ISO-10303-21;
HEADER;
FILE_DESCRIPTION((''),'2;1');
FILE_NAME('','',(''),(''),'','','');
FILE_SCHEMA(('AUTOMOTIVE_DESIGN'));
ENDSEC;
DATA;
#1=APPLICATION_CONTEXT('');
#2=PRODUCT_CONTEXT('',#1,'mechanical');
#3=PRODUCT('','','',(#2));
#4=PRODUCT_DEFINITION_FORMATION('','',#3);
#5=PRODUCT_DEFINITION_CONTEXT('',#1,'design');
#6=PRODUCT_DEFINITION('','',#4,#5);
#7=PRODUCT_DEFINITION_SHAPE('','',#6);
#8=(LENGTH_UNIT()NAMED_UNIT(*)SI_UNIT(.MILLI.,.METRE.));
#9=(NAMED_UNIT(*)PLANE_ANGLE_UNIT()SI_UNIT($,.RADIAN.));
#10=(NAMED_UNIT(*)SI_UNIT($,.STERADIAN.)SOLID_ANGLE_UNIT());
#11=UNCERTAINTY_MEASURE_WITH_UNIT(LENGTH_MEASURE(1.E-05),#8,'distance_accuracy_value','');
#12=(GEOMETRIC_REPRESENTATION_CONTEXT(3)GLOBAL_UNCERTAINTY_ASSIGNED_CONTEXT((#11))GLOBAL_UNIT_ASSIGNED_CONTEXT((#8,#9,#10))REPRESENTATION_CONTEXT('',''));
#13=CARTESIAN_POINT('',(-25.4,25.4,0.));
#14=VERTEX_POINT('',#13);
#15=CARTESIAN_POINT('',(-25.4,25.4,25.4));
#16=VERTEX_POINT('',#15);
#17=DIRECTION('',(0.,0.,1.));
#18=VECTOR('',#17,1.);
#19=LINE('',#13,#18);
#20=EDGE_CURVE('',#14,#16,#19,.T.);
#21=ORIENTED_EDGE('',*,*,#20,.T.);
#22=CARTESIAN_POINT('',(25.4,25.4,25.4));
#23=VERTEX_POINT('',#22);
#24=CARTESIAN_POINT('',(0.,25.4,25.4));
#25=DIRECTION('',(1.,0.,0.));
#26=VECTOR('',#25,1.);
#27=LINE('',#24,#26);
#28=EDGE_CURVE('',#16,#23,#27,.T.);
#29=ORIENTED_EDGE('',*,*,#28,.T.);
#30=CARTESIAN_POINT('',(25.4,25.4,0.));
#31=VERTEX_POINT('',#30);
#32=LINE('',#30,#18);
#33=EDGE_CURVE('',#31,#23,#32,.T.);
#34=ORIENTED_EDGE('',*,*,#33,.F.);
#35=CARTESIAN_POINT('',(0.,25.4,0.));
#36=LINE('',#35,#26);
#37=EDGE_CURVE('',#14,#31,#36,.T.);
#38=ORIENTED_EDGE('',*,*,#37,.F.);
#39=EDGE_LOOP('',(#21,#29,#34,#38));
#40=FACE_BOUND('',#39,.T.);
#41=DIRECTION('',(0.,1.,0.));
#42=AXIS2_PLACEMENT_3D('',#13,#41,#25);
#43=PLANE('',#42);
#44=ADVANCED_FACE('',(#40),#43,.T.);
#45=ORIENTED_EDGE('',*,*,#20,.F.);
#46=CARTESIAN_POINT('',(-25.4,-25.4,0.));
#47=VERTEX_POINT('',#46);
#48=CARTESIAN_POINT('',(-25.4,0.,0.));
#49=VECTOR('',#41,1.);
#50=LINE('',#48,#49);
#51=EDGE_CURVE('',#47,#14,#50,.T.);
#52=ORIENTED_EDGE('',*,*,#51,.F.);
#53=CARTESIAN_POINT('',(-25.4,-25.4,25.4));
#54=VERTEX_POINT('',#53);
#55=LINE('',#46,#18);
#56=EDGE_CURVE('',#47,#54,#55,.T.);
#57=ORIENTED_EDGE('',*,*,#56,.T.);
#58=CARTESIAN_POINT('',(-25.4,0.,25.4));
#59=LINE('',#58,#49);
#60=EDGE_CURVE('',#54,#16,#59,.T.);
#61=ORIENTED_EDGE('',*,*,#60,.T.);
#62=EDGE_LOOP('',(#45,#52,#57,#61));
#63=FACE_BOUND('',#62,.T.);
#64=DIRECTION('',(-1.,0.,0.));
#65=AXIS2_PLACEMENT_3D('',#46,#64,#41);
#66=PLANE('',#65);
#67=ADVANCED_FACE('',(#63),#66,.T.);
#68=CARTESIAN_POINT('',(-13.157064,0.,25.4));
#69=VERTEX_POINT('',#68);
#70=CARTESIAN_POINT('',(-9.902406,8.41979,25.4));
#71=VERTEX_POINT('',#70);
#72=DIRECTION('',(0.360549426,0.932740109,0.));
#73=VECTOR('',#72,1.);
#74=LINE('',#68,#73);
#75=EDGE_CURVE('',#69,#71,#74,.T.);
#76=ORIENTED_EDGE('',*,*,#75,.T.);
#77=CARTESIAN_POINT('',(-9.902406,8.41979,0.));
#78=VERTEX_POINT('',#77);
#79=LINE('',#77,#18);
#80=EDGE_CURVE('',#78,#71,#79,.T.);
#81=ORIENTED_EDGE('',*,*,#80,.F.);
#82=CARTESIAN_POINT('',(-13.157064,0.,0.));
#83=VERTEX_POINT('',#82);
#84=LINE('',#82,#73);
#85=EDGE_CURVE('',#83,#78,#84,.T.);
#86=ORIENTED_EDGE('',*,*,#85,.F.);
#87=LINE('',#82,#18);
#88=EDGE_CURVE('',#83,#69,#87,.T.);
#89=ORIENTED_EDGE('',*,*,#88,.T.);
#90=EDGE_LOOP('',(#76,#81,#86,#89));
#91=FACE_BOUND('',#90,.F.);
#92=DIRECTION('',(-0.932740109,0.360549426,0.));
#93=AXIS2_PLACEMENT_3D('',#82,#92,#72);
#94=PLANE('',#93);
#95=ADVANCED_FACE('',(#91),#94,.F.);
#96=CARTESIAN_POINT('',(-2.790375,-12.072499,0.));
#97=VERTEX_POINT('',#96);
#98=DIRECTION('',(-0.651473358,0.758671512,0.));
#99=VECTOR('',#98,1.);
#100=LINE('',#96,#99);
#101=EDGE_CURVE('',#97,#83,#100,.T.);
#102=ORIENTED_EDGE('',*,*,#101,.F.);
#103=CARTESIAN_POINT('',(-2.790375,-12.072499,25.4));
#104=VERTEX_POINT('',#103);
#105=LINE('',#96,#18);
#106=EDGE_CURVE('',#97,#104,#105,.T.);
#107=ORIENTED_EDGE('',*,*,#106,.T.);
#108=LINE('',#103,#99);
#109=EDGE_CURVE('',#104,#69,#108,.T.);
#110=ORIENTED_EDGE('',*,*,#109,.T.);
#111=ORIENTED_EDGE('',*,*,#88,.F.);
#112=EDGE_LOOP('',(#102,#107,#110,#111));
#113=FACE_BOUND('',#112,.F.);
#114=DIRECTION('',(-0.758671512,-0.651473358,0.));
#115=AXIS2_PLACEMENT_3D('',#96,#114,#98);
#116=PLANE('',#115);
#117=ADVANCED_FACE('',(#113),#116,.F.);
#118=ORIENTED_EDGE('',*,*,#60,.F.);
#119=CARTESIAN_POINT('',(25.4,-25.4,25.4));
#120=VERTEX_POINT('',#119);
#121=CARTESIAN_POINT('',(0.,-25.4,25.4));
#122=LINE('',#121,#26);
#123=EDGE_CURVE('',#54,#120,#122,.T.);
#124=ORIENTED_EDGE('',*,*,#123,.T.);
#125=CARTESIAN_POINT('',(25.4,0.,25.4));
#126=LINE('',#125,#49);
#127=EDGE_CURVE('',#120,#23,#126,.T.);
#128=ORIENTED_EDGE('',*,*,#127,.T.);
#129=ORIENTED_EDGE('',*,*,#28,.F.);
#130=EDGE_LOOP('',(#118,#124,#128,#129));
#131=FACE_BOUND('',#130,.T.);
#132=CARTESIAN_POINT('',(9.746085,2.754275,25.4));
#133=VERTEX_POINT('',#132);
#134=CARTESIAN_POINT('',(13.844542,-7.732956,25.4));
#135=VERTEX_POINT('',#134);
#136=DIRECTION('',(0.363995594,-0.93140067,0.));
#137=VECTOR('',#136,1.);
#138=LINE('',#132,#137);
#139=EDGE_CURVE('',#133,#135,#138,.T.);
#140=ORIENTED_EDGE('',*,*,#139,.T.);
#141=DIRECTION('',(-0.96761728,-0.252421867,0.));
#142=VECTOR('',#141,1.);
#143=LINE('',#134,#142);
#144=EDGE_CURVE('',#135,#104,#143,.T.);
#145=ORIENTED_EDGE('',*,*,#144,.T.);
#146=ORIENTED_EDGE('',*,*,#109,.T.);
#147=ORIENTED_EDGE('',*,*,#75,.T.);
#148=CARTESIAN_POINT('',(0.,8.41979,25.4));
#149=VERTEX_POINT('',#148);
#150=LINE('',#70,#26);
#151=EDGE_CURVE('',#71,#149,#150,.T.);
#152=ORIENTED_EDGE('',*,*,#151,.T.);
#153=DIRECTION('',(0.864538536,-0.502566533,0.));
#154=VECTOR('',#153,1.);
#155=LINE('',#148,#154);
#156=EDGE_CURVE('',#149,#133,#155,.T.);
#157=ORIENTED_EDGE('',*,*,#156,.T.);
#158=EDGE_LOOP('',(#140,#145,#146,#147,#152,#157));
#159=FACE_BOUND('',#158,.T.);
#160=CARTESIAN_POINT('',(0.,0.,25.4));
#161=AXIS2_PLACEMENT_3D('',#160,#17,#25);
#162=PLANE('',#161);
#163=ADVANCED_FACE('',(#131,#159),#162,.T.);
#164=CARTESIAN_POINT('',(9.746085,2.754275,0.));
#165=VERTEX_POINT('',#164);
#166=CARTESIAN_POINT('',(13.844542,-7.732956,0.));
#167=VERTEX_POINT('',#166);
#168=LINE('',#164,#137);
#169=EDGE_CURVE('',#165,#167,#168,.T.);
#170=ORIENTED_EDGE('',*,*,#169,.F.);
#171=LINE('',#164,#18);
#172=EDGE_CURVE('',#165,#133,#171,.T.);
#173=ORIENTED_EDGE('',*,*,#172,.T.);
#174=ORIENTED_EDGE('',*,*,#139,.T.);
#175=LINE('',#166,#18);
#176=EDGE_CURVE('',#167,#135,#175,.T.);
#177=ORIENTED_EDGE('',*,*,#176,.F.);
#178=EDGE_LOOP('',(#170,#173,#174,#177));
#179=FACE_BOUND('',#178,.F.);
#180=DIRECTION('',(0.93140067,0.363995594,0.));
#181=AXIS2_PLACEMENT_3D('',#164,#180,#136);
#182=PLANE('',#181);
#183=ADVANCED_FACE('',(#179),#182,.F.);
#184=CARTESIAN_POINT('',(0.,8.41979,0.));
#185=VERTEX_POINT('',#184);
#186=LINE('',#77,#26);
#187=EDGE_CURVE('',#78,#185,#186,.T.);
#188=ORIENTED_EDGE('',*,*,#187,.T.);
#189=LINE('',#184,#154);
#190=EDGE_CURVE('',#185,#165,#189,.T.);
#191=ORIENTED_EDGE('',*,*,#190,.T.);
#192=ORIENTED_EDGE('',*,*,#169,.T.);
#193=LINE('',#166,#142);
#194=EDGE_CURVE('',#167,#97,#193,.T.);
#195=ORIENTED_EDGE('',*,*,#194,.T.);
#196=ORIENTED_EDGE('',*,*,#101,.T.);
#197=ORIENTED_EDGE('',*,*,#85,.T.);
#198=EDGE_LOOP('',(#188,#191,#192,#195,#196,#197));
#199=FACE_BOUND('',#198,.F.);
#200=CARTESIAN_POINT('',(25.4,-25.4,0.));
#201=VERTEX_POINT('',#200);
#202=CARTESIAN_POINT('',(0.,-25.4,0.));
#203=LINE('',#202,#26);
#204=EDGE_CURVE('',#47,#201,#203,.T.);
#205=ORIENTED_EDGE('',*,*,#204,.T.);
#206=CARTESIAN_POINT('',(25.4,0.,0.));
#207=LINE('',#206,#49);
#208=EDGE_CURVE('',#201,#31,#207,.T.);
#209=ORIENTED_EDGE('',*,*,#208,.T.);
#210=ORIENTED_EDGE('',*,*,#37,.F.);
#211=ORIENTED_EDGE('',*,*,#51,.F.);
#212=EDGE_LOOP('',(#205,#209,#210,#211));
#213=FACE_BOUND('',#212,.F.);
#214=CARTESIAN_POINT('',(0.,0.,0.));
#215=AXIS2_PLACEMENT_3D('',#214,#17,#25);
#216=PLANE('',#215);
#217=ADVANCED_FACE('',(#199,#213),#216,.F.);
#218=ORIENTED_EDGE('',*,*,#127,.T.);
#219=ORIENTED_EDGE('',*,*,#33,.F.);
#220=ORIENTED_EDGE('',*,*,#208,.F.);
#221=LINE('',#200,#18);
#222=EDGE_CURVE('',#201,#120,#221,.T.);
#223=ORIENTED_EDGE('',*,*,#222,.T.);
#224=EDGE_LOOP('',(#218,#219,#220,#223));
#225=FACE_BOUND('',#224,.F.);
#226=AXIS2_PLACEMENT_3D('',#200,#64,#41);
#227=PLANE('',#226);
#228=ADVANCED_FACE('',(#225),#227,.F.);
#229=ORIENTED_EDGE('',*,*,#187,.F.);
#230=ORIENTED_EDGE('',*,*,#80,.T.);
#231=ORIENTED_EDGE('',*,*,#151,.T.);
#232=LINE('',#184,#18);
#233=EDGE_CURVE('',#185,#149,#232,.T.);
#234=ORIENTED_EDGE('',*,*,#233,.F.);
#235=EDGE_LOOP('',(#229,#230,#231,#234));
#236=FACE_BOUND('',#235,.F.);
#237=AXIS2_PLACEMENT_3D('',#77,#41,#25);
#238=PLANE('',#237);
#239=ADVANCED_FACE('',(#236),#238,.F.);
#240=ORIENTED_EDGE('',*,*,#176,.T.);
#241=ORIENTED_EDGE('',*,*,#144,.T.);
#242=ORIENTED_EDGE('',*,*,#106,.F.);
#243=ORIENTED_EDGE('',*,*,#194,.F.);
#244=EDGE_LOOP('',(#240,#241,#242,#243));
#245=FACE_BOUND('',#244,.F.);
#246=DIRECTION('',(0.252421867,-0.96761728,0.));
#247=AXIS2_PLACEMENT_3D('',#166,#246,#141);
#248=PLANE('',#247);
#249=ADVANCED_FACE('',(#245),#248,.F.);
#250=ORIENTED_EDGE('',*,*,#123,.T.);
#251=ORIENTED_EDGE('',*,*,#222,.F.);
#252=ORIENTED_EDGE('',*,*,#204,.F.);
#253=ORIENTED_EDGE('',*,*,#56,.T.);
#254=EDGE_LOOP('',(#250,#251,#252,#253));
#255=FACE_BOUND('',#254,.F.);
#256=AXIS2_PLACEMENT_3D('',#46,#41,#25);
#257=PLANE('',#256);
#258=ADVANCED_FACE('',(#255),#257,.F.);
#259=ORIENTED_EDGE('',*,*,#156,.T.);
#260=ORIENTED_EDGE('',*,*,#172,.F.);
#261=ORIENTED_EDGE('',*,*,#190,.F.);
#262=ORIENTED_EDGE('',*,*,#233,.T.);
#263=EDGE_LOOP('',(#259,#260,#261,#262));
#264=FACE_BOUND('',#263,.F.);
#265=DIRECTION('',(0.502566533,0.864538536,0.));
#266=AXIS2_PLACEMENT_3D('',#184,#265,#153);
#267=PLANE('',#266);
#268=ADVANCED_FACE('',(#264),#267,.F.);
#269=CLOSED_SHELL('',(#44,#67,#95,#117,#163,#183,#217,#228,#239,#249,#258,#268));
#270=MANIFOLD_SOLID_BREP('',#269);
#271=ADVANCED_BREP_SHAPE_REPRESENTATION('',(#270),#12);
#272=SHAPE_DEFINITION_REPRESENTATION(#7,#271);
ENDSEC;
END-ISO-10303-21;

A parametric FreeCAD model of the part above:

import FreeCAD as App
import Part
import Sketcher
from FreeCAD import Vector
Q = App.Units.Quantity


def add_polygon(sketch, points):
    """Adds a closed chain of lines whose ends are joined by coincident constraints."""
    first, n = sketch.GeometryCount, len(points)
    for a, b in zip(points, points[1:] + points[:1]):
        sketch.addGeometry(Part.LineSegment(App.Vector(*a, 0), App.Vector(*b, 0)), False)
    for i in range(n):
        sketch.addConstraint(Sketcher.Constraint("Coincident", first + i, 2, first + (i + 1) % n, 1))

doc = App.newDocument("Part")
body = doc.addObject("PartDesign::Body", "Body")

# Sketch on XY plane
sketch1 = body.newObject("Sketcher::SketchObject", "Sketch")
sketch1.AttachmentSupport = (doc.getObject("XY_Plane"), [""])
sketch1.MapMode = "FlatFace"
add_polygon(sketch1, [(-25, 25), (-25, -25), (25, -25), (25, 25)])  # lines 0-3
add_polygon(sketch1, [(14, -8), (-3, -12), (-13, 0), (-10, 8), (0, 8), (10, 3)])  # lines 4-9
sketch1.addConstraint([
    Sketcher.Constraint("Vertical", 0),
    Sketcher.Constraint("Horizontal", 1),
    Sketcher.Constraint("Vertical", 2),
    Sketcher.Constraint("Horizontal", 3),
    Sketcher.Constraint("Horizontal", 7),
    Sketcher.Constraint("Symmetric", 0, 2, 2, 2, -1, 1),
    Sketcher.Constraint("PointOnObject", 5, 2, -1),
    Sketcher.Constraint("PointOnObject", 7, 2, -2),
    Sketcher.Constraint("Equal", 3, 0),
    Sketcher.Constraint("DistanceX", 1, 1, 1, 2, Q("2 in")),
    Sketcher.Constraint("DistanceY", 4, 2, -1, 1, 12.072499),
    Sketcher.Constraint("Distance", 4, 17.191629),
    Sketcher.Constraint("Distance", 6, 9.026941),
    Sketcher.Constraint("DistanceX", 7, 1, 7, 2, 9.902406),
    Sketcher.Constraint("DistanceY", -1, 1, 6, 2, 8.41979),
    Sketcher.Constraint("DistanceX", 5, 2, 4, 2, 10.366689),
    Sketcher.Constraint("DistanceX", 4, 2, 8, 2, 12.53646),
    Sketcher.Constraint("DistanceY", 9, 2, 8, 2, 10.487231),
    Sketcher.Constraint("Distance", 8, 11.273164),
])
pad1 = body.newObject("PartDesign::Pad", "Pad")
pad1.Profile = sketch1
pad1.Length = Q("1 in")

doc.recompute()
